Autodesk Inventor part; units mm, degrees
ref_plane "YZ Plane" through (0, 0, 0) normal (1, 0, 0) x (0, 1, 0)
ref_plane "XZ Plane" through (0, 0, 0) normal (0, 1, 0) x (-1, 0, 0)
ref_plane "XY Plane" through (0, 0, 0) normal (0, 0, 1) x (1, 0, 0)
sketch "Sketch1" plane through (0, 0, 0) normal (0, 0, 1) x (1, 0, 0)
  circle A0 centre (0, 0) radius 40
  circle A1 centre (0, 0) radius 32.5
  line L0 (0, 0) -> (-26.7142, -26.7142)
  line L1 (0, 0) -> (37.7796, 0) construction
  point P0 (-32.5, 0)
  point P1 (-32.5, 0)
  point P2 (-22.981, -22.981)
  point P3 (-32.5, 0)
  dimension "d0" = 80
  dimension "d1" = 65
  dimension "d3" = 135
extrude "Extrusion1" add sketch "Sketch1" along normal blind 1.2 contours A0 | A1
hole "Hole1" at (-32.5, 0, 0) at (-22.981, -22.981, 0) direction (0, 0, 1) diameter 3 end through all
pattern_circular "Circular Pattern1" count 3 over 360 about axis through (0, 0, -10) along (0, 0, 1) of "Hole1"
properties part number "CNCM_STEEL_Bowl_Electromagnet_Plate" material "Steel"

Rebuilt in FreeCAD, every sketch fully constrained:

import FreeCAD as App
import Part
import Sketcher
from FreeCAD import Vector

doc = App.newDocument("Part")
body = doc.addObject("PartDesign::Body", "Body")

# Sketch on XY plane
sketch1 = body.newObject("Sketcher::SketchObject", "Sketch")
sketch1.AttachmentSupport = (doc.getObject("XY_Plane"), [""])
sketch1.MapMode = "FlatFace"
sketch1.addGeometry(Part.Circle(Vector(0, 0, 0), Vector(0, 0, 1), 40), False)
sketch1.addConstraint([
    Sketcher.Constraint("Coincident", 0, 3, -1, 1),
    Sketcher.Constraint("Diameter", 0, 80.0),
])
pad1 = body.newObject("PartDesign::Pad", "Pad")
pad1.Profile = sketch1
pad1.Length = 1.2

# Sketch on XY plane
sketch2 = body.newObject("Sketcher::SketchObject", "Sketch001")
sketch2.AttachmentSupport = (doc.getObject("XY_Plane"), [""])
sketch2.MapMode = "FlatFace"
sketch2.addGeometry([
    Part.Circle(Vector(-32.5, 0, 0), Vector(0, 0, 1), 1.5),
    Part.Circle(Vector(-23, -23, 0), Vector(0, 0, 1), 1.5),
], False)
sketch2.addConstraint([
    Sketcher.Constraint("Equal", 0, 1),
    Sketcher.Constraint("PointOnObject", 0, 3, -1),
    Sketcher.Constraint("Diameter", 0, 3.0),
    Sketcher.Constraint("DistanceX", 0, 3, -1, 1, 32.5),
    Sketcher.Constraint("DistanceX", 1, 3, -1, 1, 22.981),
    Sketcher.Constraint("DistanceY", 1, 3, -1, 1, 22.981),
])
doc.recompute()
hole = body.newObject("PartDesign::Hole", "Hole")
hole.Profile = sketch2
hole.ThreadType = "None"
hole.Diameter = 3
hole.DepthType = "ThroughAll"
hole.Reversed = True
doc.recompute()

polarpattern = body.newObject("PartDesign::PolarPattern", "PolarPattern")
polarpattern.Originals = [hole]
polarpattern.Axis = (doc.getObject("Z_Axis"), [""])
polarpattern.Angle = 360
polarpattern.Occurrences = 3
body.Tip = polarpattern

doc.recompute()
